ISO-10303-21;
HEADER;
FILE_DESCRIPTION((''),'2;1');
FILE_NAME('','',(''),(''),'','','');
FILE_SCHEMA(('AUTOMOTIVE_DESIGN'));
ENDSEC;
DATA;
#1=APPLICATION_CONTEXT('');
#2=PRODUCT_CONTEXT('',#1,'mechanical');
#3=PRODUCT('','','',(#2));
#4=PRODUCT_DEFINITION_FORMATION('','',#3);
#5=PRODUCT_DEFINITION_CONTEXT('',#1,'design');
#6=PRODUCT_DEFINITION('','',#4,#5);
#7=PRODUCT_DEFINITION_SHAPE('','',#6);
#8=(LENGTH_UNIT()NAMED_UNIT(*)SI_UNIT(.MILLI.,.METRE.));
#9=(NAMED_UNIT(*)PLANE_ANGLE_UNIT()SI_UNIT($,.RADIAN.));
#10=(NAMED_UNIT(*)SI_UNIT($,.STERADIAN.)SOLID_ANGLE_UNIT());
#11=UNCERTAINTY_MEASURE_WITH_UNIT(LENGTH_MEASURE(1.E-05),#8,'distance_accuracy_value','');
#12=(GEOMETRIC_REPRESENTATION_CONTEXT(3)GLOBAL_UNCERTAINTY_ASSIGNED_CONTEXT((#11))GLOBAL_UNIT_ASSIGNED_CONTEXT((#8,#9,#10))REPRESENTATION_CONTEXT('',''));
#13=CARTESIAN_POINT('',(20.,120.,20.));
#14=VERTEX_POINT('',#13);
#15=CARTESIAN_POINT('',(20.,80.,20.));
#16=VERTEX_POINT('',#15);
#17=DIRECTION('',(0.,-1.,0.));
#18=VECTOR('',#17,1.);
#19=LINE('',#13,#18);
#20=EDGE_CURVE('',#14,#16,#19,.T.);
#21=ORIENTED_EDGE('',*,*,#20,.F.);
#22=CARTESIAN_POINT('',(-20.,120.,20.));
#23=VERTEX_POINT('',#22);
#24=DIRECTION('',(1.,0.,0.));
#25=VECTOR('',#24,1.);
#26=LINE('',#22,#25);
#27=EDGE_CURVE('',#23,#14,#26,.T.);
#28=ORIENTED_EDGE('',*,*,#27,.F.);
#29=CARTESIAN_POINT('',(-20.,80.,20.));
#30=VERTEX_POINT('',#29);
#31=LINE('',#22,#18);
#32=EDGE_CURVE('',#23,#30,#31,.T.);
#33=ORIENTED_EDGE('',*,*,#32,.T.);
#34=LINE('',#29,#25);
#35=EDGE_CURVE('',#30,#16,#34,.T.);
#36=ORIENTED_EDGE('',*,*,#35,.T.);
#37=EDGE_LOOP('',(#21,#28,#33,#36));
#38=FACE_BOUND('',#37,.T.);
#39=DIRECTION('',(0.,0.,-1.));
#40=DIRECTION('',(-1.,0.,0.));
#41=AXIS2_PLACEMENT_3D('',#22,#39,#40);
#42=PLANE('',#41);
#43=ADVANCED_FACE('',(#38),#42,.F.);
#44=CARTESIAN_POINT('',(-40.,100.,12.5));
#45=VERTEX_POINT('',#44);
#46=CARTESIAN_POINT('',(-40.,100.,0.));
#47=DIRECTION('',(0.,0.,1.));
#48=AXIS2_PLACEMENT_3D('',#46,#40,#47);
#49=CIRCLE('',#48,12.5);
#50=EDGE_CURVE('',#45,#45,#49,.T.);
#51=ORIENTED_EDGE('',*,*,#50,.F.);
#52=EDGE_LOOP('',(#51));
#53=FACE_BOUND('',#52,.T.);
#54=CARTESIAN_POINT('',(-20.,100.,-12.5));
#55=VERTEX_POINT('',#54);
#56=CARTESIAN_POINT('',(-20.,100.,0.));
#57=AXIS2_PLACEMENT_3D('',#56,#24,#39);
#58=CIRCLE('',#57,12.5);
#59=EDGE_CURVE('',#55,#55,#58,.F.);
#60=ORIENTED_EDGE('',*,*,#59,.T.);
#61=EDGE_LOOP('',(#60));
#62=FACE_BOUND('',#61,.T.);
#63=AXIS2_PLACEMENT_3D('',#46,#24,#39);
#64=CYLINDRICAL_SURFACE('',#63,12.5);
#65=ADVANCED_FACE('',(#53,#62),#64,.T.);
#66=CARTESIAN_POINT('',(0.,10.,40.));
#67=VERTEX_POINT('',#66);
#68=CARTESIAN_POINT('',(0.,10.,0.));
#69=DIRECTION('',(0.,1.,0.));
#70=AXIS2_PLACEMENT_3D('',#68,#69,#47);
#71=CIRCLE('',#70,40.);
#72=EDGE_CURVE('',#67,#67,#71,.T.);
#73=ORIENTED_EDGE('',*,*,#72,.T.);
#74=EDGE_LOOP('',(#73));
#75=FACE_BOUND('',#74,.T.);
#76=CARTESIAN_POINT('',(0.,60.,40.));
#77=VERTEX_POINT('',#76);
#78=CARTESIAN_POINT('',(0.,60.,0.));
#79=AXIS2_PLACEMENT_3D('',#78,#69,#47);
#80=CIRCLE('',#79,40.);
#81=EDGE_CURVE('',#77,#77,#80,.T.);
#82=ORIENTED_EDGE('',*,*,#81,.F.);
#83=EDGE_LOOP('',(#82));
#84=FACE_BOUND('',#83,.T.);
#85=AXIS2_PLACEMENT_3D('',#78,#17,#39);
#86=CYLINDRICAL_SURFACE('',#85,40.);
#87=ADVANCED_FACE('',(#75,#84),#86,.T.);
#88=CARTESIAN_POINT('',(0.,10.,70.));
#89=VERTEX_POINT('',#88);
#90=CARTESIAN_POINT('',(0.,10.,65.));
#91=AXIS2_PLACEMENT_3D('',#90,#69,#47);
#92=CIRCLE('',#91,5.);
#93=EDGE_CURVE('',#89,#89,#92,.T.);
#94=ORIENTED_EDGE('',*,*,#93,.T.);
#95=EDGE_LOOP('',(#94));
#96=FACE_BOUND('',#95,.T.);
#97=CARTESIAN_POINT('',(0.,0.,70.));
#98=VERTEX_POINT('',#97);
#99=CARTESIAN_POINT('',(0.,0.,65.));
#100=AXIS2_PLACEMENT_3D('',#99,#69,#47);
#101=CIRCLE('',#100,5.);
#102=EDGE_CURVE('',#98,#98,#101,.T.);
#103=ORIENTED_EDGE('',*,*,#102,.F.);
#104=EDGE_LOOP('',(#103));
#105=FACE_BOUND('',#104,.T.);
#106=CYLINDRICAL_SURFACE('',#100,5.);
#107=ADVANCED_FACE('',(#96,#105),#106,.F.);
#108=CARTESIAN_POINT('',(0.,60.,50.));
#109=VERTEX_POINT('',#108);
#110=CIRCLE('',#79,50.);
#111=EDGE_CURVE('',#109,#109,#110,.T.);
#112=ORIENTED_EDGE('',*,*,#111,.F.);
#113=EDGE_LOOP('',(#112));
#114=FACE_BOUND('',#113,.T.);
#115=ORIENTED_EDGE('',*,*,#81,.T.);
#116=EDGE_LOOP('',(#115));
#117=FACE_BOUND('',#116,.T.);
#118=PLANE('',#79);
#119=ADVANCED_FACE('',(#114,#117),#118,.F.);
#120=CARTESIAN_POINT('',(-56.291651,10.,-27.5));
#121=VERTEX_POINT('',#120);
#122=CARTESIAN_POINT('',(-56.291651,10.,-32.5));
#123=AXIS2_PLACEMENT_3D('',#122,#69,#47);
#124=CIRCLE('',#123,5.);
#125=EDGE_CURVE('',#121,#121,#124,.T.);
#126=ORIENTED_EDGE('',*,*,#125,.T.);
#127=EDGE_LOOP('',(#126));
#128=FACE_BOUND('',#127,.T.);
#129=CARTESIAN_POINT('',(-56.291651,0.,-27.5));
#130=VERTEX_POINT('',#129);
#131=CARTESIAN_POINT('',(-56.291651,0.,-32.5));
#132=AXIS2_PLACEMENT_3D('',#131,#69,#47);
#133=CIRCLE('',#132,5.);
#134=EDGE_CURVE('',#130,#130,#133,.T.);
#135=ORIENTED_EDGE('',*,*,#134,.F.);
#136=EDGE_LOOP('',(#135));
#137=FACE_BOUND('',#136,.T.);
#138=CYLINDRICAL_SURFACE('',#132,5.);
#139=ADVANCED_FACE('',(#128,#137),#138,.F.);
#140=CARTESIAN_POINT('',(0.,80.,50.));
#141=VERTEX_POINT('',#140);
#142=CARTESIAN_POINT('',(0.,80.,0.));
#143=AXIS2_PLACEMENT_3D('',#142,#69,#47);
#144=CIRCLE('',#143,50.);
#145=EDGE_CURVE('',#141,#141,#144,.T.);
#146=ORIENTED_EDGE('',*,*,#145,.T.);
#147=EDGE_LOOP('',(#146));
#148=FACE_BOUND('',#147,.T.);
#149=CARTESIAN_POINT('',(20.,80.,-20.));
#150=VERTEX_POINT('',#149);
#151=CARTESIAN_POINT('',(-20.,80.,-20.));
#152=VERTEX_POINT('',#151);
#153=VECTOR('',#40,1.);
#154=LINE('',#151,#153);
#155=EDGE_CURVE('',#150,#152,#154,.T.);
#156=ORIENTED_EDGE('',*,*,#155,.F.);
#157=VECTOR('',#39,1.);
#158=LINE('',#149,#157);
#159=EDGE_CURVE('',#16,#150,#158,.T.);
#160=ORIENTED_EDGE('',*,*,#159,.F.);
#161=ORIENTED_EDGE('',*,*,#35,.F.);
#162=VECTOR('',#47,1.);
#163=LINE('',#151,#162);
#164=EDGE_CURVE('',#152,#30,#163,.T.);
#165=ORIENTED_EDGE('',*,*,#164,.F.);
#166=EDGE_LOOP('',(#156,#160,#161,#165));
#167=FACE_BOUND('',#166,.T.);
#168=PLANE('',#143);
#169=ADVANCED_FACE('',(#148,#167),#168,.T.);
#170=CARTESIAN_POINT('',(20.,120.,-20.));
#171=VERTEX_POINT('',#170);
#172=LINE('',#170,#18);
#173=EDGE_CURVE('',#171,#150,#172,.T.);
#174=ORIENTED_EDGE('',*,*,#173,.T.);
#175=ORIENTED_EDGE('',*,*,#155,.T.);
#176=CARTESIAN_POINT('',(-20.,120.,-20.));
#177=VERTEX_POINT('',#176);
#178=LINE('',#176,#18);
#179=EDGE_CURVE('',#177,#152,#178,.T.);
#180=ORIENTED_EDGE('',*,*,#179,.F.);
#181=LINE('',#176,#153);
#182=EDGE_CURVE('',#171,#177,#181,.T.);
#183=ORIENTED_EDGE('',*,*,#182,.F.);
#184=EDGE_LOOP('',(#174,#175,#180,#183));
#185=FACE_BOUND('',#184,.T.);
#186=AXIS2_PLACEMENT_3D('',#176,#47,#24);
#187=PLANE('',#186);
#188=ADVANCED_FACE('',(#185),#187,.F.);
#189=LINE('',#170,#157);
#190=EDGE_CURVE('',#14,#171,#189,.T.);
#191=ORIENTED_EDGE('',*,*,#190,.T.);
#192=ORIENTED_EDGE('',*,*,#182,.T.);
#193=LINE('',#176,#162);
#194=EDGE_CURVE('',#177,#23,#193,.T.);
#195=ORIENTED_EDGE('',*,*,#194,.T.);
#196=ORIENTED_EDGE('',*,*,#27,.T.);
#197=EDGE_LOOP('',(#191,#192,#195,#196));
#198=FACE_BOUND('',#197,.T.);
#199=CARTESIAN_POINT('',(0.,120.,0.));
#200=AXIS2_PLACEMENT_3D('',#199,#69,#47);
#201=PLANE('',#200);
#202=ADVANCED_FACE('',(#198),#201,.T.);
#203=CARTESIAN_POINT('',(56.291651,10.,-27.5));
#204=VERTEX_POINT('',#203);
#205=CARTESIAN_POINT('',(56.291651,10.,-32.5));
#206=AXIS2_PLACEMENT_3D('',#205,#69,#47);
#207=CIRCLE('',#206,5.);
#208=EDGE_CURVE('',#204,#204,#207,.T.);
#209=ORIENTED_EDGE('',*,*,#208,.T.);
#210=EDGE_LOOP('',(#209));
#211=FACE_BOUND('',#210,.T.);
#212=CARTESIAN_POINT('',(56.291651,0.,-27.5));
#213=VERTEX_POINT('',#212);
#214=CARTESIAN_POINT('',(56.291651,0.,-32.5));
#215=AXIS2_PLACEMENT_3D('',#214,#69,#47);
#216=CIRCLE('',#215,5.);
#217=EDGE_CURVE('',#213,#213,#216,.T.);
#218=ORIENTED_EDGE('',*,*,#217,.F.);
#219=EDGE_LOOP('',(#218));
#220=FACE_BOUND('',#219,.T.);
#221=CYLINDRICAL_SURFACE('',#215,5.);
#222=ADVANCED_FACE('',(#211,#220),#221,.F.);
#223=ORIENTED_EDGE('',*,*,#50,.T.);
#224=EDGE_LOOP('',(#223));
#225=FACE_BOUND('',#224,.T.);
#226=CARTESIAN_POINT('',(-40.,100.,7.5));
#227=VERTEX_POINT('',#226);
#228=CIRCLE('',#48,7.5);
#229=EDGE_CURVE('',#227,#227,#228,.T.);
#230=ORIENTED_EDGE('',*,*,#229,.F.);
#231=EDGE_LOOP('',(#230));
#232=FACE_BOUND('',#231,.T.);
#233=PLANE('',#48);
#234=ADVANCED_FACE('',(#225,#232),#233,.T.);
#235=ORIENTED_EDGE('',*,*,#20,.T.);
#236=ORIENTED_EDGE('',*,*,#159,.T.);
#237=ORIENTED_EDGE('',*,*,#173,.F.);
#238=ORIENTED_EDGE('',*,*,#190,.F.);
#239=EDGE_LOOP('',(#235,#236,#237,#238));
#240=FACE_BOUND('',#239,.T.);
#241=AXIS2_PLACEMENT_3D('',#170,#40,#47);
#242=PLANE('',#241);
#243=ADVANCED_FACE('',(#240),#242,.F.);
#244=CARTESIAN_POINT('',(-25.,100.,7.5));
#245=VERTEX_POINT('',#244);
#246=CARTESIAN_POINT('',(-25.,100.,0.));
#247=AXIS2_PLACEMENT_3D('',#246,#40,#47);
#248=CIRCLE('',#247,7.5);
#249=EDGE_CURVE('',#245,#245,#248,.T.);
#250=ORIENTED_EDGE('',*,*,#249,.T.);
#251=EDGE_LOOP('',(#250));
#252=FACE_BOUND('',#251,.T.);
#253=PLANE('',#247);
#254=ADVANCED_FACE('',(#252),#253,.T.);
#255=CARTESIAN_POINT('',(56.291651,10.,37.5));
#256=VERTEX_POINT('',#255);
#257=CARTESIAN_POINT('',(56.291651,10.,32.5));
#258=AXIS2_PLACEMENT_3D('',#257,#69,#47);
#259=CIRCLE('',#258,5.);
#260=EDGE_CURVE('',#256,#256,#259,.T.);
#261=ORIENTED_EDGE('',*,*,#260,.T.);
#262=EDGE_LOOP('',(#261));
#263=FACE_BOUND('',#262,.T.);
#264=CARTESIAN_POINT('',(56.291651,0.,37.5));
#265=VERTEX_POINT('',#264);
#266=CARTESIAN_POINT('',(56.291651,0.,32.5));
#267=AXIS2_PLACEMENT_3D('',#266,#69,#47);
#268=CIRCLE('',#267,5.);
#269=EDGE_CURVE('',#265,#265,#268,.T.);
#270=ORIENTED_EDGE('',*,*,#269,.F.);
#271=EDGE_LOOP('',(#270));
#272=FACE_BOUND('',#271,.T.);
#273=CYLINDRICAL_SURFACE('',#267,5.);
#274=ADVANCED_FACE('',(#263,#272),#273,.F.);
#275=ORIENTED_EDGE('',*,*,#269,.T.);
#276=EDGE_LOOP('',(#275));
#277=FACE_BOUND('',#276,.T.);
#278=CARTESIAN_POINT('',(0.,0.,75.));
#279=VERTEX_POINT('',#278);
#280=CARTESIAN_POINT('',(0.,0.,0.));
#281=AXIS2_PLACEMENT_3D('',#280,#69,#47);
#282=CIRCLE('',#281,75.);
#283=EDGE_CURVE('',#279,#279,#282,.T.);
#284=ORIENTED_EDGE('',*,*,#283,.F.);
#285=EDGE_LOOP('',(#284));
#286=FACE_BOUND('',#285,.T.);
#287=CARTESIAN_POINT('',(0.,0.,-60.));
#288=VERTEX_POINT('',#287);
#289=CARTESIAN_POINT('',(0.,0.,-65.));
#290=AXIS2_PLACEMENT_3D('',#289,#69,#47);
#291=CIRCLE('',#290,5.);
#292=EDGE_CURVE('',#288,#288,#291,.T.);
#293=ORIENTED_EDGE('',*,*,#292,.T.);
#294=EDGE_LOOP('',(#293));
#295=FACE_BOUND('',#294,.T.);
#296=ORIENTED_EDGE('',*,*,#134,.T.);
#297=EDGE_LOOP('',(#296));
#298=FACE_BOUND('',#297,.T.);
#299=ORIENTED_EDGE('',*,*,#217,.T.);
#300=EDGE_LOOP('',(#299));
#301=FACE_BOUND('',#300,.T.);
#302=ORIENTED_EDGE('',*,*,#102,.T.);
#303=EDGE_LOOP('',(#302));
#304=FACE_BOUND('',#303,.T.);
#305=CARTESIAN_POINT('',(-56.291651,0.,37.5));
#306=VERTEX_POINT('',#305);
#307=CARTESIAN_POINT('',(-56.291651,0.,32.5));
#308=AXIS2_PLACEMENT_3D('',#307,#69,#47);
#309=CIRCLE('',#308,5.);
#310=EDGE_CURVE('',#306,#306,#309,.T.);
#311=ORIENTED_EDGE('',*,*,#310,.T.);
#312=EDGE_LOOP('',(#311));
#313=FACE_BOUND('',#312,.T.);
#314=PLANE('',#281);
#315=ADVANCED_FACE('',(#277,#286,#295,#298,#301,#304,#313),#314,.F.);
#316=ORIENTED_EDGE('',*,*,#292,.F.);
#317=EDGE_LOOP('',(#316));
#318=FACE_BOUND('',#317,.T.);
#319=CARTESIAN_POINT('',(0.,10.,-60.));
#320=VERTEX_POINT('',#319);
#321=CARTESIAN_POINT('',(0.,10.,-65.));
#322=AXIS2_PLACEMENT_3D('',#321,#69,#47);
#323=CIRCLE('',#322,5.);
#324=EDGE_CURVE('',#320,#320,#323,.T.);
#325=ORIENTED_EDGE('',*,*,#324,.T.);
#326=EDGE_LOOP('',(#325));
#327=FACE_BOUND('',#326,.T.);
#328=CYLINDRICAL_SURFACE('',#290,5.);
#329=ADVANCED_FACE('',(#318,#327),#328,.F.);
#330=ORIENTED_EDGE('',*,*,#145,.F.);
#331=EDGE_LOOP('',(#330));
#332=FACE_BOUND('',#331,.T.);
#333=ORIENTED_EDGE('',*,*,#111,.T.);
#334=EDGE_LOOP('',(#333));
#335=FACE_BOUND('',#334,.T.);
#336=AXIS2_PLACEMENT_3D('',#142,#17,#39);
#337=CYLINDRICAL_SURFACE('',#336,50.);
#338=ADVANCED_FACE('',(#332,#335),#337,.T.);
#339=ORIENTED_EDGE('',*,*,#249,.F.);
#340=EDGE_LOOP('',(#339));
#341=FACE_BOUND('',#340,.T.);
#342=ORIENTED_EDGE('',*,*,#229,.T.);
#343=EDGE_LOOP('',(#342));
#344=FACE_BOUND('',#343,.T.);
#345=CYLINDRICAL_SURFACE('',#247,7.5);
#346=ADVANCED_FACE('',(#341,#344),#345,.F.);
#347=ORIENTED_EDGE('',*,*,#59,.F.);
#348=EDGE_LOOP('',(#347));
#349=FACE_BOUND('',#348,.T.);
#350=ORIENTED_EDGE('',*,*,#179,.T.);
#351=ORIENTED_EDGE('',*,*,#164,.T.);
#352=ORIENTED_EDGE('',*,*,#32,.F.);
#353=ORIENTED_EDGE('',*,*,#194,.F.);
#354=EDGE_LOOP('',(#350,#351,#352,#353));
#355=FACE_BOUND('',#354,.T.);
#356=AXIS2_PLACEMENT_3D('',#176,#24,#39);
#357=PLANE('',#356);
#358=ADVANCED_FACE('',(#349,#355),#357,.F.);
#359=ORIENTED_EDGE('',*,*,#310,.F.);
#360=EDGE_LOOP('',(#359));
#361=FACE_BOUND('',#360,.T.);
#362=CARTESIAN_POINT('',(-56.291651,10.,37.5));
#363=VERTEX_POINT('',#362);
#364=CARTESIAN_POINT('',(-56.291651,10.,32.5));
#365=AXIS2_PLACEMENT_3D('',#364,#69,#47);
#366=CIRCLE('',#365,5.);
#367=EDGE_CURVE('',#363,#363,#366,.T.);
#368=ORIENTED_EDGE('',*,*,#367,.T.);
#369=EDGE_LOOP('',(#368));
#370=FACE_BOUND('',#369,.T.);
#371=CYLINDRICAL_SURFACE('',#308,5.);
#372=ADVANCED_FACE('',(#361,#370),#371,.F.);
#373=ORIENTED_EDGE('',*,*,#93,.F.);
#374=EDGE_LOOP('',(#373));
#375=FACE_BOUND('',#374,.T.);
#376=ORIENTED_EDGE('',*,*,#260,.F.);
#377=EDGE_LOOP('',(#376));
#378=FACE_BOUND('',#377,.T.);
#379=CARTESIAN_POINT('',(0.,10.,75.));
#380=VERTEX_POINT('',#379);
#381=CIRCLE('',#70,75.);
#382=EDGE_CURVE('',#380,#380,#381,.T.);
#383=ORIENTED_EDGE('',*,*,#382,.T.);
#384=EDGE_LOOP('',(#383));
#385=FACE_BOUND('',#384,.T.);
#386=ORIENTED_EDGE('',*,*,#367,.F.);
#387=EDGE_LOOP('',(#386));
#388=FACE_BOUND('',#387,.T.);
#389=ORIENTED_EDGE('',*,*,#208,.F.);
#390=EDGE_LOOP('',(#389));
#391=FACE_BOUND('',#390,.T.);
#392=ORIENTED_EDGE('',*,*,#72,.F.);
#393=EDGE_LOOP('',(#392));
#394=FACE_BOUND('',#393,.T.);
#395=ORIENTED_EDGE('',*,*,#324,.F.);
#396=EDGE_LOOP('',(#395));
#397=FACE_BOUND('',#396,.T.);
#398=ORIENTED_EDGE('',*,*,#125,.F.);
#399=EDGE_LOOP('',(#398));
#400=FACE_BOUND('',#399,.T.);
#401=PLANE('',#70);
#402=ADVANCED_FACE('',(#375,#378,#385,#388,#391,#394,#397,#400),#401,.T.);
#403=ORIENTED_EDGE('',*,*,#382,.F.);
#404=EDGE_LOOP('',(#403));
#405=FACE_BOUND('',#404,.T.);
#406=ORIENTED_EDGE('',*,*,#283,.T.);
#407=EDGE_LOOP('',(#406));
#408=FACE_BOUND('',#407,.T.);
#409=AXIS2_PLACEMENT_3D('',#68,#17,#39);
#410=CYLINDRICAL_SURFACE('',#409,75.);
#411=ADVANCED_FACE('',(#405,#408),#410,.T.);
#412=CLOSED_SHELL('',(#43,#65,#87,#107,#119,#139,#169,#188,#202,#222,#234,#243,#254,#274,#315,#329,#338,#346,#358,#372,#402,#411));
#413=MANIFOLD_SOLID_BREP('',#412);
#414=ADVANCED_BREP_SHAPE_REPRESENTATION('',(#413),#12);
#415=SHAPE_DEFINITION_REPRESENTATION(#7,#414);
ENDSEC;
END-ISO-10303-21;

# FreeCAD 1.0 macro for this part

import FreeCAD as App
import Part
import Sketcher
from FreeCAD import Vector

doc = App.newDocument("Part")
body = doc.addObject("PartDesign::Body", "Body")

# Sketch on XZ plane
sketch1 = body.newObject("Sketcher::SketchObject", "Sketch")
sketch1.AttachmentSupport = (doc.getObject("XZ_Plane"), [""])
sketch1.MapMode = "FlatFace"
sketch1.addGeometry(Part.Circle(Vector(0, 0, 0), Vector(0, 0, 1), 75), False)
sketch1.addConstraint(Sketcher.Constraint("Coincident", 0, 3, -1, 1))
sketch1.addConstraint(Sketcher.Constraint("Diameter", 0, 150.0))
pad1 = body.newObject("PartDesign::Pad", "Pad")
pad1.Profile = sketch1
pad1.Length = 10
pad1.Reversed = True

# Sketch on XZ plane
sketch2 = body.newObject("Sketcher::SketchObject", "Sketch001")
sketch2.AttachmentSupport = (doc.getObject("XZ_Plane"), [""])
sketch2.MapMode = "FlatFace"
sketch2.AttachmentOffset = App.Placement(Vector(0, 0, -10), App.Rotation())
sketch2.addGeometry(Part.Circle(Vector(0, -65, 0), Vector(0, 0, 1), 5), False)
sketch2.addGeometry(Part.Circle(Vector(56.291651, -32.5, 0), Vector(0, 0, 1), 5), False)
sketch2.addGeometry(Part.Circle(Vector(56.291651, 32.5, 0), Vector(0, 0, 1), 5), False)
sketch2.addGeometry(Part.Circle(Vector(0, 65, 0), Vector(0, 0, 1), 5), False)
sketch2.addGeometry(Part.Circle(Vector(-56.291651, 32.5, 0), Vector(0, 0, 1), 5), False)
sketch2.addGeometry(Part.Circle(Vector(-56.291651, -32.5, 0), Vector(0, 0, 1), 5), False)
sketch2.addConstraint(Sketcher.Constraint("Equal", 0, 1))
sketch2.addConstraint(Sketcher.Constraint("Equal", 1, 2))
sketch2.addConstraint(Sketcher.Constraint("Equal", 2, 3))
sketch2.addConstraint(Sketcher.Constraint("Equal", 3, 4))
sketch2.addConstraint(Sketcher.Constraint("Equal", 4, 5))
sketch2.addConstraint(Sketcher.Constraint("Symmetric", 0, 3, 3, 3, -1, 1))
sketch2.addConstraint(Sketcher.Constraint("Symmetric", 1, 3, 4, 3, -1, 1))
sketch2.addConstraint(Sketcher.Constraint("Symmetric", 2, 3, 5, 3, -1, 1))
sketch2.addConstraint(Sketcher.Constraint("Symmetric", 2, 3, 4, 3, -2))
sketch2.addConstraint(Sketcher.Constraint("PointOnObject", 0, 3, -2))
sketch2.addConstraint(Sketcher.Constraint("Diameter", 0, 10.0))
sketch2.addConstraint(Sketcher.Constraint("DistanceY", 0, 3, -1, 1, 65.0))
sketch2.addConstraint(Sketcher.Constraint("DistanceY", 1, 3, 2, 3, 65.0))
sketch2.addConstraint(Sketcher.Constraint("DistanceX", -1, 1, 1, 3, 56.291651))
pocket1 = body.newObject("PartDesign::Pocket", "Pocket")
pocket1.Profile = sketch2
pocket1.Length = 10
pocket1.Reversed = True

# Sketch on XZ plane
sketch3 = body.newObject("Sketcher::SketchObject", "Sketch002")
sketch3.AttachmentSupport = (doc.getObject("XZ_Plane"), [""])
sketch3.MapMode = "FlatFace"
sketch3.AttachmentOffset = App.Placement(Vector(0, 0, -10), App.Rotation())
sketch3.addGeometry(Part.Circle(Vector(0, 0, 0), Vector(0, 0, 1), 40), False)
sketch3.addConstraint(Sketcher.Constraint("Coincident", 0, 3, -1, 1))
sketch3.addConstraint(Sketcher.Constraint("Diameter", 0, 80.0))
pad2 = body.newObject("PartDesign::Pad", "Pad001")
pad2.Profile = sketch3
pad2.Length = 50
pad2.Reversed = True

# Sketch on XZ plane
sketch4 = body.newObject("Sketcher::SketchObject", "Sketch003")
sketch4.AttachmentSupport = (doc.getObject("XZ_Plane"), [""])
sketch4.MapMode = "FlatFace"
sketch4.AttachmentOffset = App.Placement(Vector(0, 0, -60), App.Rotation())
sketch4.addGeometry(Part.Circle(Vector(0, 0, 0), Vector(0, 0, 1), 50), False)
sketch4.addConstraint(Sketcher.Constraint("Coincident", 0, 3, -1, 1))
sketch4.addConstraint(Sketcher.Constraint("Diameter", 0, 100.0))
pad3 = body.newObject("PartDesign::Pad", "Pad002")
pad3.Profile = sketch4
pad3.Length = 20
pad3.Reversed = True

# Sketch on XZ plane
sketch5 = body.newObject("Sketcher::SketchObject", "Sketch004")
sketch5.AttachmentSupport = (doc.getObject("XZ_Plane"), [""])
sketch5.MapMode = "FlatFace"
sketch5.AttachmentOffset = App.Placement(Vector(0, 0, -80), App.Rotation())
sketch5.addGeometry(Part.LineSegment(Vector(-20, -20, 0), Vector(-20, 20, 0)), False)
sketch5.addGeometry(Part.LineSegment(Vector(-20, 20, 0), Vector(20, 20, 0)), False)
sketch5.addGeometry(Part.LineSegment(Vector(20, 20, 0), Vector(20, -20, 0)), False)
sketch5.addGeometry(Part.LineSegment(Vector(20, -20, 0), Vector(-20, -20, 0)), False)
sketch5.addConstraint(Sketcher.Constraint("Coincident", 0, 2, 1, 1))
sketch5.addConstraint(Sketcher.Constraint("Coincident", 1, 2, 2, 1))
sketch5.addConstraint(Sketcher.Constraint("Coincident", 2, 2, 3, 1))
sketch5.addConstraint(Sketcher.Constraint("Coincident", 3, 2, 0, 1))
sketch5.addConstraint(Sketcher.Constraint("Vertical", 0))
sketch5.addConstraint(Sketcher.Constraint("Horizontal", 1))
sketch5.addConstraint(Sketcher.Constraint("Vertical", 2))
sketch5.addConstraint(Sketcher.Constraint("Horizontal", 3))
sketch5.addConstraint(Sketcher.Constraint("Symmetric", 0, 2, 2, 2, -1, 1))
sketch5.addConstraint(Sketcher.Constraint("Equal", 3, 0))
sketch5.addConstraint(Sketcher.Constraint("DistanceX", 1, 1, 1, 2, 40.0))
pad4 = body.newObject("PartDesign::Pad", "Pad003")
pad4.Profile = sketch5
pad4.Length = 40
pad4.Reversed = True

# Sketch on YZ plane
sketch6 = body.newObject("Sketcher::SketchObject", "Sketch005")
sketch6.AttachmentSupport = (doc.getObject("YZ_Plane"), [""])
sketch6.MapMode = "FlatFace"
sketch6.AttachmentOffset = App.Placement(Vector(0, 0, -20), App.Rotation())
sketch6.addGeometry(Part.Circle(Vector(100, 0, 0), Vector(0, 0, 1), 12.5), False)
sketch6.addConstraint(Sketcher.Constraint("PointOnObject", 0, 3, -1))
sketch6.addConstraint(Sketcher.Constraint("Diameter", 0, 25.0))
sketch6.addConstraint(Sketcher.Constraint("DistanceX", -1, 1, 0, 3, 100.0))
pad5 = body.newObject("PartDesign::Pad", "Pad004")
pad5.Profile = sketch6
pad5.Length = 20
pad5.Reversed = True

# Sketch on YZ plane
sketch7 = body.newObject("Sketcher::SketchObject", "Sketch006")
sketch7.AttachmentSupport = (doc.getObject("YZ_Plane"), [""])
sketch7.MapMode = "FlatFace"
sketch7.AttachmentOffset = App.Placement(Vector(0, 0, -40), App.Rotation())
sketch7.addGeometry(Part.Circle(Vector(100, 0, 0), Vector(0, 0, 1), 7.5), False)
sketch7.addConstraint(Sketcher.Constraint("PointOnObject", 0, 3, -1))
sketch7.addConstraint(Sketcher.Constraint("Diameter", 0, 15.0))
sketch7.addConstraint(Sketcher.Constraint("DistanceX", -1, 1, 0, 3, 100.0))
pocket2 = body.newObject("PartDesign::Pocket", "Pocket001")
pocket2.Profile = sketch7
pocket2.Length = 15
pocket2.Reversed = True

doc.recompute()
